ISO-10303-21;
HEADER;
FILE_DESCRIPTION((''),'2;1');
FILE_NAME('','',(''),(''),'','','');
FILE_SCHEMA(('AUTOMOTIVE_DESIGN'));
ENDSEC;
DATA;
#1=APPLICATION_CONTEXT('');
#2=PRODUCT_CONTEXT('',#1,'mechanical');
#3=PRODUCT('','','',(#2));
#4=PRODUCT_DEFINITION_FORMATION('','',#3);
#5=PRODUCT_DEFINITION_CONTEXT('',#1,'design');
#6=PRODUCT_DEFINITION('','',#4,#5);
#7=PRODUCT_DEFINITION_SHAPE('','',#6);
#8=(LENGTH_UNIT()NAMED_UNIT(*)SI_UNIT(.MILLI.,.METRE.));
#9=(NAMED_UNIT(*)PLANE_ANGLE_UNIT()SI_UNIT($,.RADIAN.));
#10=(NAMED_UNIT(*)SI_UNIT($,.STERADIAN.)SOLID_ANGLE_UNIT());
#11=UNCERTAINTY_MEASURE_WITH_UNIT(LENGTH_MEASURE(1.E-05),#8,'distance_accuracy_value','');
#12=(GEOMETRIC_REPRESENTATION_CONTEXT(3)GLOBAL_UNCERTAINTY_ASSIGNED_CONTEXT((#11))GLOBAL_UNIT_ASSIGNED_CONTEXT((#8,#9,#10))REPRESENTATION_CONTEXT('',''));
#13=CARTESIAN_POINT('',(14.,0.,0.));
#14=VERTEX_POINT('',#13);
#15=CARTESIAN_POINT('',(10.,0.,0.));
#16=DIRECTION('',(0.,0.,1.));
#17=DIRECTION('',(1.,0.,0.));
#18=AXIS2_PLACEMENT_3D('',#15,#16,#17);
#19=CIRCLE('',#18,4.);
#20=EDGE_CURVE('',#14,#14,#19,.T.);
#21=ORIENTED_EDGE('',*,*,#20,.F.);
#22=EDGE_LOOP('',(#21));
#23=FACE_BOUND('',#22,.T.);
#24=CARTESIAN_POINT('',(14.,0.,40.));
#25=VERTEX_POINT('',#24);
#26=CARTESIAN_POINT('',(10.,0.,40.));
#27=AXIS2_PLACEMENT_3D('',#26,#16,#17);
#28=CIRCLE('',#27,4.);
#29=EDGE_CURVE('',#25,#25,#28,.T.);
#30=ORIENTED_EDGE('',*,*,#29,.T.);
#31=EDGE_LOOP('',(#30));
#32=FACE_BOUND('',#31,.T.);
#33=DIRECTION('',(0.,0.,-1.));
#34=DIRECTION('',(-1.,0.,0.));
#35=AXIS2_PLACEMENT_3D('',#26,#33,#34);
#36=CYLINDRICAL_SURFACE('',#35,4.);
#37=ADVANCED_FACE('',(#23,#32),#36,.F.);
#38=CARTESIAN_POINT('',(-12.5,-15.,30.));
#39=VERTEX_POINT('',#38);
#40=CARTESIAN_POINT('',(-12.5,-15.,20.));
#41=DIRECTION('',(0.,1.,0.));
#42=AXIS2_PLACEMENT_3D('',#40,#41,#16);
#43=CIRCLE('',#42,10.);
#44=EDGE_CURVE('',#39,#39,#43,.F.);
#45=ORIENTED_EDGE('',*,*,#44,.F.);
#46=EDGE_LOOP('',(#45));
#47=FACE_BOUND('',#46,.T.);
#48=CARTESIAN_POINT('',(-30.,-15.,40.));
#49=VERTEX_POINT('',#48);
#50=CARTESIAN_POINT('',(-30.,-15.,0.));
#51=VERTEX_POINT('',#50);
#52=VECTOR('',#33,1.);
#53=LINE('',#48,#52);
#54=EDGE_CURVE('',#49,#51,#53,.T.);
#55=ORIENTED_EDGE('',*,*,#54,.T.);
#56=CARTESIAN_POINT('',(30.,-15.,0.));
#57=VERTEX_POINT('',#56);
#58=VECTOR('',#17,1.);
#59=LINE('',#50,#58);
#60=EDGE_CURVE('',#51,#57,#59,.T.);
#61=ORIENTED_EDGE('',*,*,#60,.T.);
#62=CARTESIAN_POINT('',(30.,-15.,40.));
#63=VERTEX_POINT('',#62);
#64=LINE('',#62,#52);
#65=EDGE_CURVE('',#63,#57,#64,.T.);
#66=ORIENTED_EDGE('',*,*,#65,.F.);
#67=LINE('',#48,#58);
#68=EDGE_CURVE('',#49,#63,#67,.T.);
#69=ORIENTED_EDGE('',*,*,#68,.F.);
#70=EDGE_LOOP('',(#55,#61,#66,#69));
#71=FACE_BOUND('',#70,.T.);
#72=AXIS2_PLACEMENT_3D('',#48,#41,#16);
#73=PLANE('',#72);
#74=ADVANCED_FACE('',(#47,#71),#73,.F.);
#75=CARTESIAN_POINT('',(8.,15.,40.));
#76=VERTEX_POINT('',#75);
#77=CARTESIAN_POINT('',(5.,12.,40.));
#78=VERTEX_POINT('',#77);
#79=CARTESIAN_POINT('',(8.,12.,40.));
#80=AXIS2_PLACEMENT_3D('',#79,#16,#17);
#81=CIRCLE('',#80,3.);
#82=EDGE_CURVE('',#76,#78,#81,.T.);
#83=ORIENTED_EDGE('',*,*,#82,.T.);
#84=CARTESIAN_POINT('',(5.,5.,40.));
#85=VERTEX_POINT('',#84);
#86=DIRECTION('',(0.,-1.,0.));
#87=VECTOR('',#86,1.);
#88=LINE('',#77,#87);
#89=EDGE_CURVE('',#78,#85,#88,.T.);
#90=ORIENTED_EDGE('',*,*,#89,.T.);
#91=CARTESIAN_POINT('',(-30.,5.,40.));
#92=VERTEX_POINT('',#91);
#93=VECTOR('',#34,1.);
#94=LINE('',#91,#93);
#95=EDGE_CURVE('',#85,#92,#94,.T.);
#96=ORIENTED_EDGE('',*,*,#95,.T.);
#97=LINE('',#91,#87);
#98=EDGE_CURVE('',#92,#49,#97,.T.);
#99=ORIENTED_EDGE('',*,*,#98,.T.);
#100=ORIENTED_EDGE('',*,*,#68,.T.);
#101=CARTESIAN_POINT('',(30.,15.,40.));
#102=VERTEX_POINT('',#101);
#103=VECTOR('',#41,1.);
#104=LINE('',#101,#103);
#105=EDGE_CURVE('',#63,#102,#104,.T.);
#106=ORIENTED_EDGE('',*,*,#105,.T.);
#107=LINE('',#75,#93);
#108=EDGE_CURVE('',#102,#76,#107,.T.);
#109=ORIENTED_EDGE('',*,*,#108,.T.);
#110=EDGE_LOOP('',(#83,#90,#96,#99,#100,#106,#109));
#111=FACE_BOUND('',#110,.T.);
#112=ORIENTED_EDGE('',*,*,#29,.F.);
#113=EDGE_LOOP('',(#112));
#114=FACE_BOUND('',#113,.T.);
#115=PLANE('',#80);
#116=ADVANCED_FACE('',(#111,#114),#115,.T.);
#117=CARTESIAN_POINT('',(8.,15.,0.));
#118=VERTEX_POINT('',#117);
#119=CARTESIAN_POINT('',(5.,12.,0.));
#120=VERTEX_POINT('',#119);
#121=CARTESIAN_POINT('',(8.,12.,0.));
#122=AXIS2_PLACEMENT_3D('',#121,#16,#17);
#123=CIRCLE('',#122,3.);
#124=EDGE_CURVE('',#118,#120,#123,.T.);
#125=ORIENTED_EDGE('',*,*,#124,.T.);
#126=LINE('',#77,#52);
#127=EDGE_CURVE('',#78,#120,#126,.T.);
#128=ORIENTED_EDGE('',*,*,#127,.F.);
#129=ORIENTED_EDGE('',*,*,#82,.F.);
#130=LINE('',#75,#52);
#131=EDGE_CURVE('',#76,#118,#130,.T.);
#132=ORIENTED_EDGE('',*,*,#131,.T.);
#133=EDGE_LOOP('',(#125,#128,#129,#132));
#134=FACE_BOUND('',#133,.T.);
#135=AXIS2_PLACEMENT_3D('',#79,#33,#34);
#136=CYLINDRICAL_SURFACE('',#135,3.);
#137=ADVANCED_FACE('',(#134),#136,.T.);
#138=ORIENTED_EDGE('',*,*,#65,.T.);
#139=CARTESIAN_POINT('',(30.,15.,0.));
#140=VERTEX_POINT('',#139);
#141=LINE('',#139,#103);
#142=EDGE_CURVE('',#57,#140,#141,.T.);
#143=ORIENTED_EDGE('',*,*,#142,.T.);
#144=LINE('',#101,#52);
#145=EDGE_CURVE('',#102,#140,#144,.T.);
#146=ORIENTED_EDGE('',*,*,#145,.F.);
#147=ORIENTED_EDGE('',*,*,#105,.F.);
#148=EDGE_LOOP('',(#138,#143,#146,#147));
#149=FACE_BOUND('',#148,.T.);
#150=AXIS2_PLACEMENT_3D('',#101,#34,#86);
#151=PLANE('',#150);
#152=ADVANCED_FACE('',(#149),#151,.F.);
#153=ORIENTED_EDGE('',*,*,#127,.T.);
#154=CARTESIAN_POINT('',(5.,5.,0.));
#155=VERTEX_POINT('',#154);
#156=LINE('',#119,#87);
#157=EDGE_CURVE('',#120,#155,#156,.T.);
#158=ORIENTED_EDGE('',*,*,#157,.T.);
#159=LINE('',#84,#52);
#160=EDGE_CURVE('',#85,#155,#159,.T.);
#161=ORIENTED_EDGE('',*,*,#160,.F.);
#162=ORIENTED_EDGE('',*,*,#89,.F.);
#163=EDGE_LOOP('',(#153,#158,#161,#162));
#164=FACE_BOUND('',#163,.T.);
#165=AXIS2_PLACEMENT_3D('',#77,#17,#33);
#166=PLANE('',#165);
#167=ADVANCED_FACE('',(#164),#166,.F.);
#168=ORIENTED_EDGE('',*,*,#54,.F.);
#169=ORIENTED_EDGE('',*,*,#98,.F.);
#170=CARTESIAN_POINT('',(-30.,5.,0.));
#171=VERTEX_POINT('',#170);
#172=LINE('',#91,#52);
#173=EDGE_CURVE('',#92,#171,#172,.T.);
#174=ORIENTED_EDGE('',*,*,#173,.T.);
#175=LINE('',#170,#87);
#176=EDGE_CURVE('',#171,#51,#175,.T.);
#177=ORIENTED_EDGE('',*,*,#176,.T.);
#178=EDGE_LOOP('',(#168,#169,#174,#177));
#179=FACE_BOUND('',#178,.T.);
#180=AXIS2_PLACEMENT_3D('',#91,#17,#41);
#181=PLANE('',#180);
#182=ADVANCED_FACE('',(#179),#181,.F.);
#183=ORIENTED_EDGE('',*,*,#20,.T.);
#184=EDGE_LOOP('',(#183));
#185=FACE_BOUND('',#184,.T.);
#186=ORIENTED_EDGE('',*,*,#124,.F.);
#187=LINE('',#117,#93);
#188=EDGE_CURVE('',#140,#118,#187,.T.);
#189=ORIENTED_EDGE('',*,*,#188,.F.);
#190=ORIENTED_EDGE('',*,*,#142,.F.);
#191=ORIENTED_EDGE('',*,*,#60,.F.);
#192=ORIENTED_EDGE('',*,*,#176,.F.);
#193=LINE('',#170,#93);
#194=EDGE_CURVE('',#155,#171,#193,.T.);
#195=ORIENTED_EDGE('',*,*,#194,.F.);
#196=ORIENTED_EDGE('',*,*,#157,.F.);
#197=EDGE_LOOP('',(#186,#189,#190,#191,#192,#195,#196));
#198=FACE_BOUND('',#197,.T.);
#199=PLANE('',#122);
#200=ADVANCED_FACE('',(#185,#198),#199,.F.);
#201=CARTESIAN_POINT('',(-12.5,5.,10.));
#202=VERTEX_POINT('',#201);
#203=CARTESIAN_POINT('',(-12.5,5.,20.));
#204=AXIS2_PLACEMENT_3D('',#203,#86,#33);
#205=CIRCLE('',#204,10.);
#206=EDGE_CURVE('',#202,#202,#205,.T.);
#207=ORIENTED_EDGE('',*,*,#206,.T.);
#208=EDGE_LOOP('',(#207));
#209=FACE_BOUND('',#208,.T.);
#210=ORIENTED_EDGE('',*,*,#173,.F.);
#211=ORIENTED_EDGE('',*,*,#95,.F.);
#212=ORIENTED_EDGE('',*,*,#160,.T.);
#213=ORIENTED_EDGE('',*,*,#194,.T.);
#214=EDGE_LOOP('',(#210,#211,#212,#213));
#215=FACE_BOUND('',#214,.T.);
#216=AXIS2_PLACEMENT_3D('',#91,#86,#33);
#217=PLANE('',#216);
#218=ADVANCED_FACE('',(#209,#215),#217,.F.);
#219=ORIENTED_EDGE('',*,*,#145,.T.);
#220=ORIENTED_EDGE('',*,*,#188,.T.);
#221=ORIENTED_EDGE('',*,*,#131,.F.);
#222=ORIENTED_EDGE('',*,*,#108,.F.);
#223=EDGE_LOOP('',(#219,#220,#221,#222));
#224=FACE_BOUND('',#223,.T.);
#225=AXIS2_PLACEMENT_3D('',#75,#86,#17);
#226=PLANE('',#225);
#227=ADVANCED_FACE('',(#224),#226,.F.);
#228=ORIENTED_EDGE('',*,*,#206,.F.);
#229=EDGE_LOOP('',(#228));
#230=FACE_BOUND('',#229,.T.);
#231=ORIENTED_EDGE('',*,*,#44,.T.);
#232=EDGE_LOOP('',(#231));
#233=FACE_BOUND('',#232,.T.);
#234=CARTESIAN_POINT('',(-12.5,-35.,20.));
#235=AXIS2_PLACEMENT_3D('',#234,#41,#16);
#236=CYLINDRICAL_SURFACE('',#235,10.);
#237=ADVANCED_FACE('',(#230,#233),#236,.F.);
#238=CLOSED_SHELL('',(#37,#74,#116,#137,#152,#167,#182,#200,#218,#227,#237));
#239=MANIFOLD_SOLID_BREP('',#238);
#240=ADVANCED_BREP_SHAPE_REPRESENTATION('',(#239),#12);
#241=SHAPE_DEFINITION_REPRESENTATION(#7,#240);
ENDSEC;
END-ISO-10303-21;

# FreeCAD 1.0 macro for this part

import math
import FreeCAD as App
import Part
import Sketcher
from FreeCAD import Vector

doc = App.newDocument("Part")
body = doc.addObject("PartDesign::Body", "Body")

# Sketch on XY plane
sketch1 = body.newObject("Sketcher::SketchObject", "Sketch")
sketch1.AttachmentSupport = (doc.getObject("XY_Plane"), [""])
sketch1.MapMode = "FlatFace"
sketch1.addGeometry([
    Part.LineSegment(Vector(30, 15, 0), Vector(8, 15, 0)),  # 0
    Part.ArcOfCircle(Part.Circle(Vector(8, 12, 0), Vector(0, 0, 1), 3), math.radians(90), math.radians(180)),  # 1
    Part.LineSegment(Vector(5, 12, 0), Vector(5, 5, 0)),  # 2
    Part.LineSegment(Vector(5, 5, 0), Vector(-30, 5, 0)),  # 3
    Part.LineSegment(Vector(-30, 5, 0), Vector(-30, -15, 0)),  # 4
    Part.LineSegment(Vector(-30, -15, 0), Vector(30, -15, 0)),  # 5
    Part.LineSegment(Vector(30, -15, 0), Vector(30, 15, 0)),  # 6
    Part.Circle(Vector(10, 0, 0), Vector(0, 0, 1), 4),  # 7
], False)
sketch1.addConstraint([
    Sketcher.Constraint("Tangent", 0, 2, 1, 1),
    Sketcher.Constraint("Tangent", 1, 2, 2, 1),
    Sketcher.Constraint("Coincident", 2, 2, 3, 1),
    Sketcher.Constraint("Coincident", 3, 2, 4, 1),
    Sketcher.Constraint("Coincident", 4, 2, 5, 1),
    Sketcher.Constraint("Coincident", 5, 2, 6, 1),
    Sketcher.Constraint("Coincident", 6, 2, 0, 1),
    Sketcher.Constraint("Horizontal", 0),
    Sketcher.Constraint("Vertical", 2),
    Sketcher.Constraint("Horizontal", 3),
    Sketcher.Constraint("Vertical", 4),
    Sketcher.Constraint("Horizontal", 5),
    Sketcher.Constraint("Vertical", 6),
    Sketcher.Constraint("Symmetric", 4, 2, 6, 2, -1, 1),
    Sketcher.Constraint("PointOnObject", 7, 3, -1),
    Sketcher.Constraint("Diameter", 7, 8.0),
    Sketcher.Constraint("Radius", 1, 3.0),
    Sketcher.Constraint("DistanceX", 0, 2, 0, 1, 22.0),
    Sketcher.Constraint("DistanceX", 3, 2, 3, 1, 35.0),
    Sketcher.Constraint("DistanceY", 2, 2, 2, 1, 7.0),
    Sketcher.Constraint("DistanceY", 4, 2, 4, 1, 20.0),
    Sketcher.Constraint("DistanceX", -1, 1, 7, 3, 10.0),
])
pad1 = body.newObject("PartDesign::Pad", "Pad")
pad1.Profile = sketch1
pad1.Length = 40

# Sketch on XZ plane
sketch2 = body.newObject("Sketcher::SketchObject", "Sketch001")
sketch2.AttachmentSupport = (doc.getObject("XZ_Plane"), [""])
sketch2.MapMode = "FlatFace"
sketch2.AttachmentOffset = App.Placement(Vector(0, 0, -5), App.Rotation())
sketch2.addGeometry(Part.Circle(Vector(-12, 20, 0), Vector(0, 0, 1), 10), False)
sketch2.addConstraint([
    Sketcher.Constraint("Diameter", 0, 20.0),
    Sketcher.Constraint("DistanceY", -1, 1, 0, 3, 20.0),
    Sketcher.Constraint("DistanceX", 0, 3, -1, 1, 12.5),
])
pocket1 = body.newObject("PartDesign::Pocket", "Pocket")
pocket1.Profile = sketch2
pocket1.Length = 40
pocket1.Reversed = True

doc.recompute()
